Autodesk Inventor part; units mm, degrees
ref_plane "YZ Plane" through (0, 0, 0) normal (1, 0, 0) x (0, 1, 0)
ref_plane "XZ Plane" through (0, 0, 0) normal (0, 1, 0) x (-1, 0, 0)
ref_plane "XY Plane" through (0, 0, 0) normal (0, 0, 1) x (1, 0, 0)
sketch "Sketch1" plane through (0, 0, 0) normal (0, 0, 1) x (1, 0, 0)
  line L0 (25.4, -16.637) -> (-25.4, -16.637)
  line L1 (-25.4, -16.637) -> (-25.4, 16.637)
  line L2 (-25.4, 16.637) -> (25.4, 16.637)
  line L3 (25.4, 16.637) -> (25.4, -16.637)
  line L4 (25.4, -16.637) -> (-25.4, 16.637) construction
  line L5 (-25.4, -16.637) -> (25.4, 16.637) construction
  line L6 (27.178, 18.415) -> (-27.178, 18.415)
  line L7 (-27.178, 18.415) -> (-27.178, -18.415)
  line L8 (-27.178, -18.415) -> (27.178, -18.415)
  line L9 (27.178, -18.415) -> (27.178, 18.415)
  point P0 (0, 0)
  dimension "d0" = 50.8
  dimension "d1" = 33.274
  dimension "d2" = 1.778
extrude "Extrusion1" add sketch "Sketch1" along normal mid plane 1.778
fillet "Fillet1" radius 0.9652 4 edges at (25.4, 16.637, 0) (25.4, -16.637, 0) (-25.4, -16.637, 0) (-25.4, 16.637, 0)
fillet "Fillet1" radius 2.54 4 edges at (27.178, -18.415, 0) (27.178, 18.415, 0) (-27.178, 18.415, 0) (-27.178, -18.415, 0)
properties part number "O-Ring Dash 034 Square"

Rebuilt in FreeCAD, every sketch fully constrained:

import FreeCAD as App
import Part
import Sketcher
from FreeCAD import Vector
Q = App.Units.Quantity


def edges_at(feature, points):
    """Names of the edges that pass closest to the given points."""
    edges = feature.Shape.Edges
    near = lambda p: min(range(len(edges)), key=lambda i: edges[i].distToShape(Part.Vertex(*p))[0])
    return sorted({f"Edge{near(p) + 1}" for p in points})

doc = App.newDocument("Part")
body = doc.addObject("PartDesign::Body", "Body")

sketch1 = body.newObject("Sketcher::SketchObject", "Sketch")
sketch1.AttachmentSupport = (doc.getObject("XY_Plane"), [""])
sketch1.MapMode = "FlatFace"
sketch1.addGeometry([
    Part.LineSegment(Vector(27, -18, 0), Vector(27, 18, 0)),
    Part.LineSegment(Vector(27, 18, 0), Vector(-27, 18, 0)),
    Part.LineSegment(Vector(-27, 18, 0), Vector(-27, -18, 0)),
    Part.LineSegment(Vector(-27, -18, 0), Vector(27, -18, 0)),
    Part.LineSegment(Vector(25, 17, 0), Vector(25, -17, 0)),
    Part.LineSegment(Vector(25, -17, 0), Vector(-25, -17, 0)),
    Part.LineSegment(Vector(-25, -17, 0), Vector(-25, 17, 0)),
    Part.LineSegment(Vector(-25, 17, 0), Vector(25, 17, 0)),
], False)
sketch1.addConstraint([
    Sketcher.Constraint("Coincident", 0, 2, 1, 1),
    Sketcher.Constraint("Coincident", 1, 2, 2, 1),
    Sketcher.Constraint("Coincident", 2, 2, 3, 1),
    Sketcher.Constraint("Coincident", 3, 2, 0, 1),
    Sketcher.Constraint("Coincident", 4, 2, 5, 1),
    Sketcher.Constraint("Coincident", 5, 2, 6, 1),
    Sketcher.Constraint("Coincident", 6, 2, 7, 1),
    Sketcher.Constraint("Coincident", 7, 2, 4, 1),
    Sketcher.Constraint("Vertical", 0),
    Sketcher.Constraint("Horizontal", 1),
    Sketcher.Constraint("Vertical", 2),
    Sketcher.Constraint("Horizontal", 3),
    Sketcher.Constraint("Vertical", 4),
    Sketcher.Constraint("Horizontal", 5),
    Sketcher.Constraint("Vertical", 6),
    Sketcher.Constraint("Horizontal", 7),
    Sketcher.Constraint("Symmetric", 0, 2, 2, 2, -1, 1),
    Sketcher.Constraint("Symmetric", 4, 2, 6, 2, -1, 1),
    Sketcher.Constraint("DistanceX", 5, 2, 5, 1, Q("2 in")),
    Sketcher.Constraint("DistanceY", 4, 2, 4, 1, Q("1.31 in")),
    Sketcher.Constraint("DistanceX", 4, 2, 3, 2, Q("0.07 in")),
    Sketcher.Constraint("DistanceY", 3, 2, 4, 2, Q("0.07 in")),
])
pad1 = body.newObject("PartDesign::Pad", "Pad")
pad1.Profile = sketch1
pad1.Length = Q("0.07 in")
pad1.Midplane = True
doc.recompute()

fillet = body.newObject("PartDesign::Fillet", "Fillet")
fillet.Base = (pad1, edges_at(pad1, [
    (25.4, 16.637, 0),
    (25.4, -16.637, 0),
    (-25.4, -16.637, 0),
    (-25.4, 16.637, 0),
]))
fillet.Radius = Q("0.038 in")
doc.recompute()

fillet2 = body.newObject("PartDesign::Fillet", "Fillet001")
fillet2.Base = (fillet, edges_at(fillet, [
    (27.178, -18.415, 0),
    (27.178, 18.415, 0),
    (-27.178, 18.415, 0),
    (-27.178, -18.415, 0),
]))
fillet2.Radius = Q("0.1 in")

doc.recompute()
